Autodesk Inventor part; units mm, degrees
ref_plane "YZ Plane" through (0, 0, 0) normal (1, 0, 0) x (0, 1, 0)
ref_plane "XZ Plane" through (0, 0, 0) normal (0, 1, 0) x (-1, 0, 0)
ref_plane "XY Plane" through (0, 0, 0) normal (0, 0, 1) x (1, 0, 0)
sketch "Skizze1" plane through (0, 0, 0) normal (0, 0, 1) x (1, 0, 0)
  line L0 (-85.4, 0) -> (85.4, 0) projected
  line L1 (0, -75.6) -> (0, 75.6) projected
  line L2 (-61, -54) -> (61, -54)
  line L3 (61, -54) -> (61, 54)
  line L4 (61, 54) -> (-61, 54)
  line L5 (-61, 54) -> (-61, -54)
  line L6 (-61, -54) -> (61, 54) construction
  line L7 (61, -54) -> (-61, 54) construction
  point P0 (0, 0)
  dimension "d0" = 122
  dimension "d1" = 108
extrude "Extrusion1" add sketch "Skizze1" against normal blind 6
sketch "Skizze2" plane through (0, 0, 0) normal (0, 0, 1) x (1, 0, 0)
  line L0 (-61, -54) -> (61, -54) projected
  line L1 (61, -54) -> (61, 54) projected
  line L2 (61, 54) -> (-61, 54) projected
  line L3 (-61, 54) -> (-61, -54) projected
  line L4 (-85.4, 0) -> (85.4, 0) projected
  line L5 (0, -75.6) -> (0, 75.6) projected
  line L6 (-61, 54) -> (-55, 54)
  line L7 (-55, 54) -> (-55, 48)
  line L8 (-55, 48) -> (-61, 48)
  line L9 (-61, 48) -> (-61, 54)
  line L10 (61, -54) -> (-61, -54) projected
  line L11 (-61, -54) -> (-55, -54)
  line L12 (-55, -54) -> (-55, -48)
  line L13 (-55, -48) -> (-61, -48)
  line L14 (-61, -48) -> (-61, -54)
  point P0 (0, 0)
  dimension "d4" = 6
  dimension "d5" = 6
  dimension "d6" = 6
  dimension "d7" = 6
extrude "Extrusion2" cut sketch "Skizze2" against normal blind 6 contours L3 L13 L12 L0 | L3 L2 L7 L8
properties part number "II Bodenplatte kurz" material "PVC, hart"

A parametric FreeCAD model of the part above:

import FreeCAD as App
import Part
import Sketcher
from FreeCAD import Vector
Q = App.Units.Quantity

doc = App.newDocument("Part")
body = doc.addObject("PartDesign::Body", "Body")

sketch1 = body.newObject("Sketcher::SketchObject", "Sketch")
sketch1.AttachmentSupport = (doc.getObject("XY_Plane"), [""])
sketch1.MapMode = "FlatFace"
sketch1.addGeometry([
    Part.LineSegment(Vector(-61, 54, 0), Vector(-61, -54, 0)),
    Part.LineSegment(Vector(-61, -54, 0), Vector(61, -54, 0)),
    Part.LineSegment(Vector(61, -54, 0), Vector(61, 54, 0)),
    Part.LineSegment(Vector(61, 54, 0), Vector(-61, 54, 0)),
], False)
sketch1.addConstraint([
    Sketcher.Constraint("Coincident", 0, 2, 1, 1),
    Sketcher.Constraint("Coincident", 1, 2, 2, 1),
    Sketcher.Constraint("Coincident", 2, 2, 3, 1),
    Sketcher.Constraint("Coincident", 3, 2, 0, 1),
    Sketcher.Constraint("Vertical", 0),
    Sketcher.Constraint("Horizontal", 1),
    Sketcher.Constraint("Vertical", 2),
    Sketcher.Constraint("Horizontal", 3),
    Sketcher.Constraint("Symmetric", 0, 2, 2, 2, -1, 1),
    Sketcher.Constraint("DistanceX", 1, 1, 1, 2, Q("122 mm")),
    Sketcher.Constraint("DistanceY", 0, 2, 0, 1, Q("108 mm")),
])
pad1 = body.newObject("PartDesign::Pad", "Pad")
pad1.Profile = sketch1
pad1.Length = 6
pad1.Reversed = True

sketch2 = body.newObject("Sketcher::SketchObject", "Sketch001")
sketch2.AttachmentSupport = (doc.getObject("XY_Plane"), [""])
sketch2.MapMode = "FlatFace"
sketch2.addGeometry([
    Part.LineSegment(Vector(-61, -48, 0), Vector(-61, -54, 0)),
    Part.LineSegment(Vector(-61, -54, 0), Vector(-55, -54, 0)),
    Part.LineSegment(Vector(-55, -54, 0), Vector(-55, -48, 0)),
    Part.LineSegment(Vector(-55, -48, 0), Vector(-61, -48, 0)),
    Part.LineSegment(Vector(-61, 54, 0), Vector(-61, 48, 0)),
    Part.LineSegment(Vector(-61, 48, 0), Vector(-55, 48, 0)),
    Part.LineSegment(Vector(-55, 48, 0), Vector(-55, 54, 0)),
    Part.LineSegment(Vector(-55, 54, 0), Vector(-61, 54, 0)),
], False)
sketch2.addConstraint([
    Sketcher.Constraint("Coincident", 0, 2, 1, 1),
    Sketcher.Constraint("Coincident", 1, 2, 2, 1),
    Sketcher.Constraint("Coincident", 2, 2, 3, 1),
    Sketcher.Constraint("Coincident", 3, 2, 0, 1),
    Sketcher.Constraint("Coincident", 4, 2, 5, 1),
    Sketcher.Constraint("Coincident", 5, 2, 6, 1),
    Sketcher.Constraint("Coincident", 6, 2, 7, 1),
    Sketcher.Constraint("Coincident", 7, 2, 4, 1),
    Sketcher.Constraint("Vertical", 0),
    Sketcher.Constraint("Horizontal", 1),
    Sketcher.Constraint("Vertical", 2),
    Sketcher.Constraint("Horizontal", 3),
    Sketcher.Constraint("Vertical", 4),
    Sketcher.Constraint("Horizontal", 5),
    Sketcher.Constraint("Vertical", 6),
    Sketcher.Constraint("Horizontal", 7),
    Sketcher.Constraint("Symmetric", 3, 2, 4, 2, -1),
    Sketcher.Constraint("Symmetric", 1, 2, 6, 2, -1),
    Sketcher.Constraint("Equal", 7, 0),
    Sketcher.Constraint("DistanceX", 1, 1, 1, 2, Q("6 mm")),
    Sketcher.Constraint("DistanceX", 0, 2, -1, 1, Q("61 mm")),
    Sketcher.Constraint("DistanceY", 0, 2, -1, 1, Q("54 mm")),
])
pocket1 = body.newObject("PartDesign::Pocket", "Pocket")
pocket1.Profile = sketch2
pocket1.Length = 6

doc.recompute()
